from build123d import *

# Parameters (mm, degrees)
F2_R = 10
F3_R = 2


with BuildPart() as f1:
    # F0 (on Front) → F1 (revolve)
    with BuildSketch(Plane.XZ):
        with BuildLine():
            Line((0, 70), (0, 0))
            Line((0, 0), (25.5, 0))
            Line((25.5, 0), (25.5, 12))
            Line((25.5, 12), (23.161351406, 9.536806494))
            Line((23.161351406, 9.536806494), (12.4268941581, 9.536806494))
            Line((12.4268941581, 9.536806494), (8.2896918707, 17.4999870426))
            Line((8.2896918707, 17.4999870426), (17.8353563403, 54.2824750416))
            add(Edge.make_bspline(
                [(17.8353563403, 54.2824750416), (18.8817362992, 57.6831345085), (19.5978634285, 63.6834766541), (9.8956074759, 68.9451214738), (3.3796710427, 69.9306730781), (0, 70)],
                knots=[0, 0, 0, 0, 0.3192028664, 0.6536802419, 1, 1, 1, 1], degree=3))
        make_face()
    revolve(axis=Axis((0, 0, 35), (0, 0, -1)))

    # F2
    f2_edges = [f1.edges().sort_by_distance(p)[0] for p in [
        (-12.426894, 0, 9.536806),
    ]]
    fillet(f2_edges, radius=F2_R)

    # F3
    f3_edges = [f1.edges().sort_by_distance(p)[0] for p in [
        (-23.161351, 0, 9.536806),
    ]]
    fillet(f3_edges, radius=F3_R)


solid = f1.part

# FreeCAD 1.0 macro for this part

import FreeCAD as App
import Part
import Sketcher
Q = App.Units.Quantity


def edges_at(feature, points):
    """Names of the edges that pass closest to the given points."""
    edges = feature.Shape.Edges
    near = lambda p: min(range(len(edges)), key=lambda i: edges[i].distToShape(Part.Vertex(*p))[0])
    return sorted({f"Edge{near(p) + 1}" for p in points})

doc = App.newDocument("Part")
body = doc.addObject("PartDesign::Body", "Body")

# Sketch on XZ plane
sketch1 = body.newObject("Sketcher::SketchObject", "Sketch")
sketch1.AttachmentSupport = (doc.getObject("XZ_Plane"), [""])
sketch1.MapMode = "FlatFace"
sketch1.addGeometry([
    Part.LineSegment(App.Vector(0, 70, 0), App.Vector(0, 0, 0)),  # 0
    Part.LineSegment(App.Vector(0, 0, 0), App.Vector(25.5, 0, 0)),  # 1
    Part.LineSegment(App.Vector(25.5, 0, 0), App.Vector(25.5, 12, 0)),  # 2
    Part.LineSegment(App.Vector(25.5, 12, 0), App.Vector(23.161351, 9.536806, 0)),  # 3
    Part.LineSegment(App.Vector(23.161351, 9.536806, 0), App.Vector(12.426894, 9.536806, 0)),  # 4
    Part.LineSegment(App.Vector(12.426894, 9.536806, 0), App.Vector(8.289692, 17.499987, 0)),  # 5
    Part.LineSegment(App.Vector(8.289692, 17.499987, 0), App.Vector(17.835356, 54.282475, 0)),  # 6
    Part.BSplineCurve([App.Vector(17.835356, 54.282475, 0), App.Vector(18.881736, 57.683135, 0), App.Vector(19.597863, 63.683477, 0), App.Vector(9.895607, 68.945121, 0), App.Vector(3.379671, 69.930673, 0), App.Vector(0, 70, 0)], [4, 1, 1, 4], [0, 0.319202866, 0.653680242, 1], False, 3, [1, 1, 1, 1, 1, 1], False),  # 7
], False)
sketch1.addConstraint([
    Sketcher.Constraint("Block", 7),
    Sketcher.Constraint("Coincident", 0, 2, 1, 1),
    Sketcher.Constraint("Coincident", 1, 2, 2, 1),
    Sketcher.Constraint("Coincident", 2, 2, 3, 1),
    Sketcher.Constraint("Coincident", 3, 2, 4, 1),
    Sketcher.Constraint("Coincident", 4, 2, 5, 1),
    Sketcher.Constraint("Coincident", 5, 2, 6, 1),
    Sketcher.Constraint("Coincident", 6, 2, 7, 1),
    Sketcher.Constraint("Coincident", 7, 2, 0, 1),
    Sketcher.Constraint("Vertical", 0),
    Sketcher.Constraint("Horizontal", 1),
    Sketcher.Constraint("Vertical", 2),
    Sketcher.Constraint("Horizontal", 4),
    Sketcher.Constraint("PointOnObject", 1, 2, -1),
    Sketcher.Constraint("DistanceY", 2, 1, 2, 2, Q("12 mm")),
    Sketcher.Constraint("DistanceX", 1, 1, 1, 2, Q("25.5 mm")),
    Sketcher.Constraint("DistanceX", 4, 2, 4, 1, Q("10.734457 mm")),
    Sketcher.Constraint("DistanceX", -1, 1, 3, 2, Q("23.161351 mm")),
    Sketcher.Constraint("DistanceX", -1, 1, 5, 2, Q("8.289692 mm")),
    Sketcher.Constraint("DistanceY", 4, 2, 5, 2, Q("7.963181 mm")),
    Sketcher.Constraint("DistanceY", 3, 2, 6, 2, Q("44.745669 mm")),
])
revolution = body.newObject("PartDesign::Revolution", "Revolution")
revolution.Profile = sketch1
revolution.ReferenceAxis = (sketch1, ["V_Axis"])
revolution.Angle = 360
doc.recompute()

fillet = body.newObject("PartDesign::Fillet", "Fillet")
fillet.Base = (revolution, edges_at(revolution, [(-12.427, 0, 9.537)]))
fillet.Radius = 10
doc.recompute()

fillet2 = body.newObject("PartDesign::Fillet", "Fillet001")
fillet2.Base = (fillet, edges_at(fillet, [(-23.161, 0, 9.537)]))
fillet2.Radius = 2

doc.recompute()
